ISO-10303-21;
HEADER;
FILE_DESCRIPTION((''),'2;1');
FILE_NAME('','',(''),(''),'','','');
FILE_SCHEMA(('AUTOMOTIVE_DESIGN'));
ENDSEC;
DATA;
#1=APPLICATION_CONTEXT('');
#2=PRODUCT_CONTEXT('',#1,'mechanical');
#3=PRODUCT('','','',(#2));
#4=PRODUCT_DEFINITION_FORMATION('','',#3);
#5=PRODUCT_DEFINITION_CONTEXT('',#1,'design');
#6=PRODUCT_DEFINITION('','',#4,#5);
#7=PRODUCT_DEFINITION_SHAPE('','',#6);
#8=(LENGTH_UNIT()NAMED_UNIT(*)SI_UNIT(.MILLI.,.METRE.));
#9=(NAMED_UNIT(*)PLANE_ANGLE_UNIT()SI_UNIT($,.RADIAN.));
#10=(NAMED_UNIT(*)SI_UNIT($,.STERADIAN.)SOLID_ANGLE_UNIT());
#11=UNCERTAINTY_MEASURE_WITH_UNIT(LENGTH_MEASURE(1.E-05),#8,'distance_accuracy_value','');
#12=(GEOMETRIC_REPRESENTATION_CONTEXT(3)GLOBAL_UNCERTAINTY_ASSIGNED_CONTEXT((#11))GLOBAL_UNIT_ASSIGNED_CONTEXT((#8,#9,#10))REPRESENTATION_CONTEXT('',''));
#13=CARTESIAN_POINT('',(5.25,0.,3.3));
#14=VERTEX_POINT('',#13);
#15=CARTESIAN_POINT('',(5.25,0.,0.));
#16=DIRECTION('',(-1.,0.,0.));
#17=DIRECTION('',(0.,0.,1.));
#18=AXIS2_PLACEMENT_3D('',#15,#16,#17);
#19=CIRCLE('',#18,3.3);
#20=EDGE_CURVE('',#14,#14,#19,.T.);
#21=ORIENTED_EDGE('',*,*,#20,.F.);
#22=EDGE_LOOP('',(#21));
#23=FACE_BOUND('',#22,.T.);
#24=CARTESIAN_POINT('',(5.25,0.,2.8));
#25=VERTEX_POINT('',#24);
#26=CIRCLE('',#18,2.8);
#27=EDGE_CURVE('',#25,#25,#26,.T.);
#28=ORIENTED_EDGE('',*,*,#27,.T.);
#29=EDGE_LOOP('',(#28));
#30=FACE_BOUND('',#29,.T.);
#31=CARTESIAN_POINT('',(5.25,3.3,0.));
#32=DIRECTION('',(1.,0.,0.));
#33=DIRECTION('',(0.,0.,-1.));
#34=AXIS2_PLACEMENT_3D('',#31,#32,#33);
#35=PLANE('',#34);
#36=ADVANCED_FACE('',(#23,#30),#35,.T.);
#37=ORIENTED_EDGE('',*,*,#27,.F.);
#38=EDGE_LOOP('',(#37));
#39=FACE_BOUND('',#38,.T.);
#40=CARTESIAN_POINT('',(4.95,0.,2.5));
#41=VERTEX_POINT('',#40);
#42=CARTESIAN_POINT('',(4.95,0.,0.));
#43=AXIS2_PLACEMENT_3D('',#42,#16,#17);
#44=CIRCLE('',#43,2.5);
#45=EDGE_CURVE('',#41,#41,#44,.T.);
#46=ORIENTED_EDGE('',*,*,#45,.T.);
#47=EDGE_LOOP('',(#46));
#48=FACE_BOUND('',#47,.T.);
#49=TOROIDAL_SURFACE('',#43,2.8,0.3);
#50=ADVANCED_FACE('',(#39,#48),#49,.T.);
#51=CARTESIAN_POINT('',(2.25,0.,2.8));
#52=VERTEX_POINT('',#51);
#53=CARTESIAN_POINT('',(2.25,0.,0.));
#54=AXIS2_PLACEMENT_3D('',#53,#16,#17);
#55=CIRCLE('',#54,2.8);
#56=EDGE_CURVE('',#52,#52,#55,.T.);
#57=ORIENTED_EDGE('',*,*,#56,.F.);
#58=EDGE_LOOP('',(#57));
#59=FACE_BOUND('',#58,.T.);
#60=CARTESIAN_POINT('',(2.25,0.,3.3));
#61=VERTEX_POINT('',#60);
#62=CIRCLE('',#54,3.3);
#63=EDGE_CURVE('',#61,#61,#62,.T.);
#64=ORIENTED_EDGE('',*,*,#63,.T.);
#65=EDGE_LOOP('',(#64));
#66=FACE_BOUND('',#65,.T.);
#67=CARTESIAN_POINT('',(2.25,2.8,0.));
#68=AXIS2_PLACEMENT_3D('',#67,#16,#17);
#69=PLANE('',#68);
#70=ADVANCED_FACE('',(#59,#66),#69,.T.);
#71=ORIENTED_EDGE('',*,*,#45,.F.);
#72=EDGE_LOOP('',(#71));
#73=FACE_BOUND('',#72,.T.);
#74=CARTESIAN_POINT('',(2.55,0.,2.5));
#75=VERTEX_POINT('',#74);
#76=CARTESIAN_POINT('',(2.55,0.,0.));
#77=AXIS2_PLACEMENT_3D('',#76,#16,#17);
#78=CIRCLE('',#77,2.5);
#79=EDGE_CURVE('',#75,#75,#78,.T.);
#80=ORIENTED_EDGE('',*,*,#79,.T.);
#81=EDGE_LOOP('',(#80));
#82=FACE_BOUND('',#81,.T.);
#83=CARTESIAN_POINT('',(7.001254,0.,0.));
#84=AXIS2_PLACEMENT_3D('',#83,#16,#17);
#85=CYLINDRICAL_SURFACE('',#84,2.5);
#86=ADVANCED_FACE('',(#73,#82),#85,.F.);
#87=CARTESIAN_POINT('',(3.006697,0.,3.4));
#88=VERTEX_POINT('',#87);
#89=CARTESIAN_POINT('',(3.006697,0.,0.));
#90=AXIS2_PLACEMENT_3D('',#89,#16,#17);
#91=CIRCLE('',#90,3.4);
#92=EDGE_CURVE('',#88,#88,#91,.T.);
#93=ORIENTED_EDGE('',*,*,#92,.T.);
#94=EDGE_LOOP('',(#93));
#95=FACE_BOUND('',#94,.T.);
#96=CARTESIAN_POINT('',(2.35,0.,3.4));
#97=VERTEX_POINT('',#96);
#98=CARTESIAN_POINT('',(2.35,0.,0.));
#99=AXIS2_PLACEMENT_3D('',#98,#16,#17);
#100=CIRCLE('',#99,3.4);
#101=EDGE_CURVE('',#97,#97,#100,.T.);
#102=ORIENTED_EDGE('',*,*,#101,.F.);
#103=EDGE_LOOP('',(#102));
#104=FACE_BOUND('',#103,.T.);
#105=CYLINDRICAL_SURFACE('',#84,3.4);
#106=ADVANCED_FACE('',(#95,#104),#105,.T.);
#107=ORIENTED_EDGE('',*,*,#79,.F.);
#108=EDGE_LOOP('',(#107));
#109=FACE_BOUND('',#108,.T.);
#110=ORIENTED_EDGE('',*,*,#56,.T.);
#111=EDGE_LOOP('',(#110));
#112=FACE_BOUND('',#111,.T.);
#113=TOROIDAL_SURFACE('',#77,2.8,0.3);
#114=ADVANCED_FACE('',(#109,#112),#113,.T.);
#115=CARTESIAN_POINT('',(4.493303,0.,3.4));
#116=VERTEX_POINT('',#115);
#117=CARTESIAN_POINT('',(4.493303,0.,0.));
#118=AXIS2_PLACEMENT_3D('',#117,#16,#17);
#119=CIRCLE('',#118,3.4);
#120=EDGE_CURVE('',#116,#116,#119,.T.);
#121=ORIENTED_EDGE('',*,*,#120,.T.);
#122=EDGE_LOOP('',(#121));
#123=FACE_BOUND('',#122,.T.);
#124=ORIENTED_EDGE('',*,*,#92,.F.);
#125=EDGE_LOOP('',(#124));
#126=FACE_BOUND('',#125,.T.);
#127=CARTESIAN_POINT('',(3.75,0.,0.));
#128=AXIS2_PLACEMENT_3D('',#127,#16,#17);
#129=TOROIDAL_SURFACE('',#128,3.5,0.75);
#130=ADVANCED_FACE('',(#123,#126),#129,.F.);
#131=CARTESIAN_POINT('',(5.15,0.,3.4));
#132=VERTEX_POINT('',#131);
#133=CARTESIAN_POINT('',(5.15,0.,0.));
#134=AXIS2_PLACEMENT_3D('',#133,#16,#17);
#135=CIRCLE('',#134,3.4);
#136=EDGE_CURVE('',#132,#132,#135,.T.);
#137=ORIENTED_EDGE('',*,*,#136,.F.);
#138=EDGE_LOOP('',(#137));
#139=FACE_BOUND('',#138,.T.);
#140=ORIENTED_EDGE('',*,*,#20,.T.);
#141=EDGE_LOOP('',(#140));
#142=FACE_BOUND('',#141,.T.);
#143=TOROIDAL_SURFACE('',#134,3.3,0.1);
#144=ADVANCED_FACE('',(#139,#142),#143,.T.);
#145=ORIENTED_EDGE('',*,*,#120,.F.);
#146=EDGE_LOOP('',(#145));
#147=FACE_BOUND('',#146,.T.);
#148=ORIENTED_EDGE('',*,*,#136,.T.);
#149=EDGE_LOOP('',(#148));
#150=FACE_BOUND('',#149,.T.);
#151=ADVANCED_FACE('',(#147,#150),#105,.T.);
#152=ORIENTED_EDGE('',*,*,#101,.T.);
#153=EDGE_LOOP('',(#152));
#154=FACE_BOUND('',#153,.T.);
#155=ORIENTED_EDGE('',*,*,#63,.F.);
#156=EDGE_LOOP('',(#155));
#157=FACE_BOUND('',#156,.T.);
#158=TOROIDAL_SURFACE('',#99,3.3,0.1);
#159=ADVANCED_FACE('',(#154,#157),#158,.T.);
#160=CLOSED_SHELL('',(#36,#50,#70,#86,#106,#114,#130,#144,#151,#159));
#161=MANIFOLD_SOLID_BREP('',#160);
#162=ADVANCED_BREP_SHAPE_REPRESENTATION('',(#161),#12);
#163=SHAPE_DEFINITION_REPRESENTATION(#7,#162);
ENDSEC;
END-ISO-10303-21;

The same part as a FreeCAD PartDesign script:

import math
import FreeCAD as App
import Part
import Sketcher

V = App.Vector
Q = App.Units.Quantity

doc = App.newDocument("Part")
body = doc.addObject("PartDesign::Body", "Body")

# Sketch on XY plane
sketch1 = body.newObject("Sketcher::SketchObject", "Sketch")
sketch1.AttachmentSupport = (doc.getObject("XY_Plane"), [""])
sketch1.MapMode = "FlatFace"
sketch1.addGeometry([
    Part.LineSegment(V(2.35, 3.4, 0), V(3.01, 3.4, 0)),  # 0
    Part.ArcOfCircle(Part.Circle(V(3.75, 3.5, 0), V(0, 0, 1), 0.75), math.radians(-172), math.radians(-8)),  # 1
    Part.LineSegment(V(4.49, 3.4, 0), V(5.15, 3.4, 0)),  # 2
    Part.ArcOfCircle(Part.Circle(V(5.15, 3.3, 0), V(0, 0, 1), 0.1), math.radians(0), math.radians(90)),  # 3
    Part.LineSegment(V(5.25, 3.3, 0), V(5.25, 2.8, 0)),  # 4
    Part.ArcOfCircle(Part.Circle(V(4.95, 2.8, 0), V(0, 0, 1), 0.3), math.radians(-90), math.radians(0)),  # 5
    Part.LineSegment(V(4.95, 2.5, 0), V(2.55, 2.5, 0)),  # 6
    Part.ArcOfCircle(Part.Circle(V(2.55, 2.8, 0), V(0, 0, 1), 0.3), math.radians(-180), math.radians(-90)),  # 7
    Part.LineSegment(V(2.25, 2.8, 0), V(2.25, 3.3, 0)),  # 8
    Part.ArcOfCircle(Part.Circle(V(2.35, 3.3, 0), V(0, 0, 1), 0.1), math.radians(90), math.radians(180)),  # 9
], False)
sketch1.addConstraint([
    Sketcher.Constraint("Coincident", 0, 2, 1, 1),
    Sketcher.Constraint("Coincident", 1, 2, 2, 1),
    Sketcher.Constraint("Tangent", 2, 2, 3, 2),
    Sketcher.Constraint("Tangent", 3, 1, 4, 1),
    Sketcher.Constraint("Tangent", 4, 2, 5, 2),
    Sketcher.Constraint("Tangent", 5, 1, 6, 1),
    Sketcher.Constraint("Tangent", 6, 2, 7, 2),
    Sketcher.Constraint("Tangent", 7, 1, 8, 1),
    Sketcher.Constraint("Tangent", 8, 2, 9, 2),
    Sketcher.Constraint("Tangent", 9, 1, 0, 1),
    Sketcher.Constraint("Horizontal", 0),
    Sketcher.Constraint("Horizontal", 2),
    Sketcher.Constraint("Vertical", 4),
    Sketcher.Constraint("Horizontal", 6),
    Sketcher.Constraint("Vertical", 8),
    Sketcher.Constraint("Equal", 5, 7),
    Sketcher.Constraint("Equal", 3, 9),
    Sketcher.Constraint("Horizontal", 3, 3, 9, 3),
    Sketcher.Constraint("Equal", 0, 2),
    Sketcher.Constraint("Radius", 3, Q("0.1 mm")),
    Sketcher.Constraint("Radius", 5, Q("0.3 mm")),
    Sketcher.Constraint("Radius", 1, Q("0.75 mm")),
    Sketcher.Constraint("DistanceX", 6, 2, 6, 1, Q("2.4 mm")),
    Sketcher.Constraint("DistanceY", 4, 2, 4, 1, Q("0.5 mm")),
    Sketcher.Constraint("DistanceY", 6, 2, 1, 3, Q("1 mm")),
    Sketcher.Constraint("DistanceY", -1, 1, 1, 3, Q("3.5 mm")),
    Sketcher.Constraint("DistanceX", -1, 1, 1, 3, Q("3.75 mm")),
])
revolution = body.newObject("PartDesign::Revolution", "Revolution")
revolution.Profile = sketch1
revolution.ReferenceAxis = (sketch1, ["H_Axis"])
revolution.Angle = 360

doc.recompute()
